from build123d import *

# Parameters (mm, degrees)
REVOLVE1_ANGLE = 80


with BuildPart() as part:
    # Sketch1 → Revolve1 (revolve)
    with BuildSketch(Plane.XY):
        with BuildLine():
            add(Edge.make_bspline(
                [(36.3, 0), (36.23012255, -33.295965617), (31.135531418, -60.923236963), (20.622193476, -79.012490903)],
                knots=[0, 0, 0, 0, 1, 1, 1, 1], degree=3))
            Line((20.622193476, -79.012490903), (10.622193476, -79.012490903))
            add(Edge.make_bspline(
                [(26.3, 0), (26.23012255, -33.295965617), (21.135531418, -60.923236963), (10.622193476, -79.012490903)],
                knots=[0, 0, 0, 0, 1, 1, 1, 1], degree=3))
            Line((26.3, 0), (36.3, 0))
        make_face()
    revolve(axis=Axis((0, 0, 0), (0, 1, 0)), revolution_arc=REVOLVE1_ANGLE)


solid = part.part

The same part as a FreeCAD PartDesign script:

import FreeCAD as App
import Part
import Sketcher

V = App.Vector

doc = App.newDocument("Part")
body = doc.addObject("PartDesign::Body", "Body")

# Sketch on XY plane
sketch1 = body.newObject("Sketcher::SketchObject", "Sketch")
sketch1.AttachmentSupport = (doc.getObject("XY_Plane"), [""])
sketch1.MapMode = "FlatFace"
sketch1.addGeometry([
    Part.BSplineCurve([V(36.3, 0, 0), V(36.230123, -33.295966, 0), V(31.135531, -60.923237, 0), V(20.622193, -79.012491, 0)], [4, 4], [0, 1], False, 3, [1, 1, 1, 1], False),
    Part.LineSegment(V(36.3, 0, 0), V(26.3, 0, 0)),
    Part.BSplineCurve([V(26.3, 0, 0), V(26.230123, -33.295966, 0), V(21.135531, -60.923237, 0), V(10.622193, -79.012491, 0)], [4, 4], [0, 1], False, 3, [1, 1, 1, 1], False),
    Part.LineSegment(V(10.622193, -79.012491, 0), V(20.622193, -79.012491, 0)),
], False)
sketch1.addConstraint([
    Sketcher.Constraint("Block", 0),
    Sketcher.Constraint("Block", 2),
    Sketcher.Constraint("Coincident", 0, 1, 1, 1),
    Sketcher.Constraint("Coincident", 1, 2, 2, 1),
    Sketcher.Constraint("Coincident", 2, 2, 3, 1),
    Sketcher.Constraint("Coincident", 3, 2, 0, 2),
])
revolution = body.newObject("PartDesign::Revolution", "Revolution")
revolution.Profile = sketch1
revolution.ReferenceAxis = (sketch1, ["V_Axis"])
revolution.Angle = 80

doc.recompute()
